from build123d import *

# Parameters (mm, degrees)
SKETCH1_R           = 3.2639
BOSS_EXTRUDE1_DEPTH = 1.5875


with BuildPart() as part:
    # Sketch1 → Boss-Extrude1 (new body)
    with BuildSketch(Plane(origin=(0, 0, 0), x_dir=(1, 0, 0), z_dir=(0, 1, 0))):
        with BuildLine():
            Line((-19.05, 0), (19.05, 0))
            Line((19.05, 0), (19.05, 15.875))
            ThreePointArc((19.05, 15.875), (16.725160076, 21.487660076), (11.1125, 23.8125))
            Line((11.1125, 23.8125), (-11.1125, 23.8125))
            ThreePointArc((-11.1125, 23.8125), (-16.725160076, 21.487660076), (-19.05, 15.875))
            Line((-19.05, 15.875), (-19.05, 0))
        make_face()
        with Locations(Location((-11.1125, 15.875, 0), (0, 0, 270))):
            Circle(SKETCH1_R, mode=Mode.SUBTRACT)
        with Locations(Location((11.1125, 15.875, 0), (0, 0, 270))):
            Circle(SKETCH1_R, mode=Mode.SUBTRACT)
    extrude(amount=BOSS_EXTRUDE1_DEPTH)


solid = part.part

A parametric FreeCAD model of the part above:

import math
import FreeCAD as App
import Part
import Sketcher
Q = App.Units.Quantity

doc = App.newDocument("Part")
params = doc.addObject("Spreadsheet::Sheet", "Params")
for row, (alias, value) in enumerate([
    ("sketch1_diameter", "0.257 in"),
    ("sketch1_width", "1.5 in"),
    ("sketch1_radius", "0.3125 in"),
    ("sketch1_height", "0.625 in"),
    ("pad1_length", "0.0625 in"),
], start=1):
    params.set(f"A{row}", alias)
    params.set(f"B{row}", "=" + value)
    params.setAlias(f"B{row}", alias)

body = doc.addObject("PartDesign::Body", "Body")

sketch1 = body.newObject("Sketcher::SketchObject", "Sketch")
sketch1.AttachmentSupport = (doc.getObject("XZ_Plane"), [""])
sketch1.MapMode = "FlatFace"
sketch1.addGeometry([
    Part.LineSegment(App.Vector(-19.1, 0, 0), App.Vector(19.1, 0, 0)),
    Part.LineSegment(App.Vector(19.1, 0, 0), App.Vector(19.1, -15.9, 0)),
    Part.ArcOfCircle(Part.Circle(App.Vector(11.1, -15.9, 0), App.Vector(0, 0, 1), 7.9), math.radians(-90), math.radians(0)),
    Part.LineSegment(App.Vector(11.1, -23.8, 0), App.Vector(-11.1, -23.8, 0)),
    Part.ArcOfCircle(Part.Circle(App.Vector(-11.1, -15.9, 0), App.Vector(0, 0, 1), 7.9), math.radians(180), math.radians(270)),
    Part.LineSegment(App.Vector(-19.1, -15.9, 0), App.Vector(-19.1, 0, 0)),
    Part.Circle(App.Vector(-11.1, -15.9, 0), App.Vector(0, 0, 1), 3.3),
    Part.Circle(App.Vector(11.1, -15.9, 0), App.Vector(0, 0, 1), 3.3),
], False)
sketch1.addConstraint([
    Sketcher.Constraint("Coincident", 0, 2, 1, 1),
    Sketcher.Constraint("Tangent", 1, 2, 2, 2),
    Sketcher.Constraint("Tangent", 2, 1, 3, 1),
    Sketcher.Constraint("Tangent", 3, 2, 4, 2),
    Sketcher.Constraint("Tangent", 4, 1, 5, 1),
    Sketcher.Constraint("Coincident", 5, 2, 0, 1),
    Sketcher.Constraint("Horizontal", 0),
    Sketcher.Constraint("Vertical", 1),
    Sketcher.Constraint("Horizontal", 3),
    Sketcher.Constraint("Vertical", 5),
    Sketcher.Constraint("Coincident", 6, 3, 4, 3),
    Sketcher.Constraint("Coincident", 7, 3, 2, 3),
    Sketcher.Constraint("Equal", 2, 4),
    Sketcher.Constraint("Equal", 6, 7),
    Sketcher.Constraint("Symmetric", 0, 2, 5, 2, -1, 1),
    Sketcher.Constraint("Diameter", 6, Q("0.257 in")),
    Sketcher.Constraint("DistanceX", 0, 1, 0, 2, Q("1.5 in")),
    Sketcher.Constraint("Radius", 2, Q("0.3125 in")),
    Sketcher.Constraint("DistanceY", 1, 2, 1, 1, Q("0.625 in")),
])
sketch1.setExpression("Constraints[15]", "Params.sketch1_diameter")
sketch1.setExpression("Constraints[16]", "Params.sketch1_width")
sketch1.setExpression("Constraints[17]", "Params.sketch1_radius")
sketch1.setExpression("Constraints[18]", "Params.sketch1_height")
pad1 = body.newObject("PartDesign::Pad", "Pad")
pad1.Profile = sketch1
pad1.setExpression("Length", "Params.pad1_length")
pad1.Reversed = True

doc.recompute()
